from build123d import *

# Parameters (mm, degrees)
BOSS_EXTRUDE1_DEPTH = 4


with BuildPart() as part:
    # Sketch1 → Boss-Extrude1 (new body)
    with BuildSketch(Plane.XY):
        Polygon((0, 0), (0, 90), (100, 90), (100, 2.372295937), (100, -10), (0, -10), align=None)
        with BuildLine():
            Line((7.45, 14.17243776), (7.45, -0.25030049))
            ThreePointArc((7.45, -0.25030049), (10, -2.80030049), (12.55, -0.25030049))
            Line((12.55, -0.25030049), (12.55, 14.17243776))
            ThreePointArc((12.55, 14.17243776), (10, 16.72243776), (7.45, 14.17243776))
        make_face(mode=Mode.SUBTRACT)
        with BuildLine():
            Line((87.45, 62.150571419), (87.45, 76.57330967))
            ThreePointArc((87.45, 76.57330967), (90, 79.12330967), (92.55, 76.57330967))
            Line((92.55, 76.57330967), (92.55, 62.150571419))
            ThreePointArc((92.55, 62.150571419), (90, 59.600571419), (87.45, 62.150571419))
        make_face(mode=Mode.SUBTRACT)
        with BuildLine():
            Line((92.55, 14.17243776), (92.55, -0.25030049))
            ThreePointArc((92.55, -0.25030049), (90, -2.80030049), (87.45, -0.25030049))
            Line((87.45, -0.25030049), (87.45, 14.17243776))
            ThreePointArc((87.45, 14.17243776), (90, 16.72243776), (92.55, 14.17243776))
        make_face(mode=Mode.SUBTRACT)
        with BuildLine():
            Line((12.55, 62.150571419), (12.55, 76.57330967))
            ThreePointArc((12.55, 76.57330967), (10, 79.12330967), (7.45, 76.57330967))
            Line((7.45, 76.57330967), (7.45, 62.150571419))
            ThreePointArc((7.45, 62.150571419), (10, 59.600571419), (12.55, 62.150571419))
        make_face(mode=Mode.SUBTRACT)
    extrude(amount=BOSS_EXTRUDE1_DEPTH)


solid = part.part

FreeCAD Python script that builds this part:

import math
import FreeCAD as App
import Part
import Sketcher


def add_polygon(sketch, points):
    """Adds a closed chain of lines whose ends are joined by coincident constraints."""
    first, n = sketch.GeometryCount, len(points)
    for a, b in zip(points, points[1:] + points[:1]):
        sketch.addGeometry(Part.LineSegment(App.Vector(*a, 0), App.Vector(*b, 0)), False)
    for i in range(n):
        sketch.addConstraint(Sketcher.Constraint("Coincident", first + i, 2, first + (i + 1) % n, 1))

doc = App.newDocument("Part")
params = doc.addObject("Spreadsheet::Sheet", "Params")
for row, (alias, value) in enumerate([
    ("sketch1_width", "100 mm"),
    ("sketch1_radius", "2.55 mm"),
    ("pad1_length", "4 mm"),
], start=1):
    params.set(f"A{row}", alias)
    params.set(f"B{row}", "=" + value)
    params.setAlias(f"B{row}", alias)

body = doc.addObject("PartDesign::Body", "Body")

sketch1 = body.newObject("Sketcher::SketchObject", "Sketch")
sketch1.AttachmentSupport = (doc.getObject("XY_Plane"), [""])
sketch1.MapMode = "FlatFace"
add_polygon(sketch1, [(0, 90), (0, -10), (100, -10), (100, 90)])
sketch1.addGeometry(Part.LineSegment(App.Vector(92.5, 14.2, 0), App.Vector(92.5, -0.3, 0)), False)
sketch1.addGeometry(Part.ArcOfCircle(Part.Circle(App.Vector(90, -0.3, 0), App.Vector(0, 0, 1), 2.5), math.radians(180), math.radians(360)), False)
sketch1.addGeometry(Part.LineSegment(App.Vector(87.5, -0.3, 0), App.Vector(87.5, 14.2, 0)), False)
sketch1.addGeometry(Part.ArcOfCircle(Part.Circle(App.Vector(90, 14.2, 0), App.Vector(0, 0, 1), 2.5), math.radians(0), math.radians(180)), False)
sketch1.addGeometry(Part.ArcOfCircle(Part.Circle(App.Vector(10, 14.2, 0), App.Vector(0, 0, 1), 2.5), math.radians(0), math.radians(180)), False)
sketch1.addGeometry(Part.LineSegment(App.Vector(12.6, 14.2, 0), App.Vector(12.6, -0.3, 0)), False)
sketch1.addGeometry(Part.ArcOfCircle(Part.Circle(App.Vector(10, -0.3, 0), App.Vector(0, 0, 1), 2.5), math.radians(180), math.radians(360)), False)
sketch1.addGeometry(Part.LineSegment(App.Vector(7.5, -0.3, 0), App.Vector(7.5, 14.2, 0)), False)
sketch1.addGeometry(Part.LineSegment(App.Vector(87.5, 62.2, 0), App.Vector(87.5, 76.6, 0)), False)
sketch1.addGeometry(Part.ArcOfCircle(Part.Circle(App.Vector(90, 76.6, 0), App.Vector(0, 0, 1), 2.5), math.radians(0), math.radians(180)), False)
sketch1.addGeometry(Part.LineSegment(App.Vector(92.5, 76.6, 0), App.Vector(92.5, 62.2, 0)), False)
sketch1.addGeometry(Part.ArcOfCircle(Part.Circle(App.Vector(90, 62.2, 0), App.Vector(0, 0, 1), 2.5), math.radians(180), math.radians(360)), False)
sketch1.addGeometry(Part.ArcOfCircle(Part.Circle(App.Vector(10, 62.2, 0), App.Vector(0, 0, 1), 2.5), math.radians(180), math.radians(360)), False)
sketch1.addGeometry(Part.LineSegment(App.Vector(7.5, 62.2, 0), App.Vector(7.5, 76.6, 0)), False)
sketch1.addGeometry(Part.ArcOfCircle(Part.Circle(App.Vector(10, 76.6, 0), App.Vector(0, 0, 1), 2.5), math.radians(0), math.radians(180)), False)
sketch1.addGeometry(Part.LineSegment(App.Vector(12.6, 76.6, 0), App.Vector(12.6, 62.2, 0)), False)
sketch1.addConstraint([
    Sketcher.Constraint("Tangent", 4, 2, 5, 2),
    Sketcher.Constraint("Tangent", 5, 1, 6, 1),
    Sketcher.Constraint("Tangent", 6, 2, 7, 2),
    Sketcher.Constraint("Tangent", 7, 1, 4, 1),
    Sketcher.Constraint("Tangent", 8, 1, 9, 1),
    Sketcher.Constraint("Tangent", 9, 2, 10, 2),
    Sketcher.Constraint("Tangent", 10, 1, 11, 1),
    Sketcher.Constraint("Tangent", 11, 2, 8, 2),
    Sketcher.Constraint("Tangent", 12, 2, 13, 2),
    Sketcher.Constraint("Tangent", 13, 1, 14, 1),
    Sketcher.Constraint("Tangent", 14, 2, 15, 2),
    Sketcher.Constraint("Tangent", 15, 1, 12, 1),
    Sketcher.Constraint("Tangent", 16, 1, 17, 1),
    Sketcher.Constraint("Tangent", 17, 2, 18, 2),
    Sketcher.Constraint("Tangent", 18, 1, 19, 1),
    Sketcher.Constraint("Tangent", 19, 2, 16, 2),
    Sketcher.Constraint("Vertical", 0),
    Sketcher.Constraint("Horizontal", 1),
    Sketcher.Constraint("Vertical", 2),
    Sketcher.Constraint("Horizontal", 3),
    Sketcher.Constraint("Vertical", 4),
    Sketcher.Constraint("Vertical", 6),
    Sketcher.Constraint("Vertical", 9),
    Sketcher.Constraint("Vertical", 11),
    Sketcher.Constraint("Vertical", 12),
    Sketcher.Constraint("Vertical", 14),
    Sketcher.Constraint("Vertical", 17),
    Sketcher.Constraint("Vertical", 19),
    Sketcher.Constraint("Equal", 7, 8),
    Sketcher.Constraint("Equal", 10, 13),
    Sketcher.Constraint("Equal", 15, 16),
    Sketcher.Constraint("PointOnObject", 0, 2, -2),
    Sketcher.Constraint("Horizontal", 7, 3, 8, 3),
    Sketcher.Constraint("Horizontal", 5, 3, 10, 3),
    Sketcher.Constraint("Horizontal", 15, 3, 16, 3),
    Sketcher.Constraint("Horizontal", 13, 3, 18, 3),
    Sketcher.Constraint("Vertical", 7, 3, 13, 3),
    Sketcher.Constraint("Vertical", 10, 3, 16, 3),
    Sketcher.Constraint("Equal", 3, 0),
    Sketcher.Constraint("Equal", 11, 12),
    Sketcher.Constraint("DistanceX", 1, 1, 1, 2, 100.0),
    Sketcher.Constraint("Radius", 5, 2.55),
    Sketcher.Constraint("DistanceX", -1, 1, 5, 3, 90.0),
    Sketcher.Constraint("DistanceX", -1, 1, 8, 3, 10.0),
    Sketcher.Constraint("DistanceY", 0, 2, -1, 1, 10.0),
    Sketcher.Constraint("DistanceY", 4, 2, 4, 1, 14.422738),
    Sketcher.Constraint("DistanceY", 5, 3, -1, 1, 0.2503),
    Sketcher.Constraint("DistanceY", -1, 1, 13, 3, 76.57331),
])
sketch1.setExpression("Constraints[44]", "Params.sketch1_width")
sketch1.setExpression("Constraints[45]", "Params.sketch1_radius")
pad1 = body.newObject("PartDesign::Pad", "Pad")
pad1.Profile = sketch1
pad1.setExpression("Length", "Params.pad1_length")

doc.recompute()
